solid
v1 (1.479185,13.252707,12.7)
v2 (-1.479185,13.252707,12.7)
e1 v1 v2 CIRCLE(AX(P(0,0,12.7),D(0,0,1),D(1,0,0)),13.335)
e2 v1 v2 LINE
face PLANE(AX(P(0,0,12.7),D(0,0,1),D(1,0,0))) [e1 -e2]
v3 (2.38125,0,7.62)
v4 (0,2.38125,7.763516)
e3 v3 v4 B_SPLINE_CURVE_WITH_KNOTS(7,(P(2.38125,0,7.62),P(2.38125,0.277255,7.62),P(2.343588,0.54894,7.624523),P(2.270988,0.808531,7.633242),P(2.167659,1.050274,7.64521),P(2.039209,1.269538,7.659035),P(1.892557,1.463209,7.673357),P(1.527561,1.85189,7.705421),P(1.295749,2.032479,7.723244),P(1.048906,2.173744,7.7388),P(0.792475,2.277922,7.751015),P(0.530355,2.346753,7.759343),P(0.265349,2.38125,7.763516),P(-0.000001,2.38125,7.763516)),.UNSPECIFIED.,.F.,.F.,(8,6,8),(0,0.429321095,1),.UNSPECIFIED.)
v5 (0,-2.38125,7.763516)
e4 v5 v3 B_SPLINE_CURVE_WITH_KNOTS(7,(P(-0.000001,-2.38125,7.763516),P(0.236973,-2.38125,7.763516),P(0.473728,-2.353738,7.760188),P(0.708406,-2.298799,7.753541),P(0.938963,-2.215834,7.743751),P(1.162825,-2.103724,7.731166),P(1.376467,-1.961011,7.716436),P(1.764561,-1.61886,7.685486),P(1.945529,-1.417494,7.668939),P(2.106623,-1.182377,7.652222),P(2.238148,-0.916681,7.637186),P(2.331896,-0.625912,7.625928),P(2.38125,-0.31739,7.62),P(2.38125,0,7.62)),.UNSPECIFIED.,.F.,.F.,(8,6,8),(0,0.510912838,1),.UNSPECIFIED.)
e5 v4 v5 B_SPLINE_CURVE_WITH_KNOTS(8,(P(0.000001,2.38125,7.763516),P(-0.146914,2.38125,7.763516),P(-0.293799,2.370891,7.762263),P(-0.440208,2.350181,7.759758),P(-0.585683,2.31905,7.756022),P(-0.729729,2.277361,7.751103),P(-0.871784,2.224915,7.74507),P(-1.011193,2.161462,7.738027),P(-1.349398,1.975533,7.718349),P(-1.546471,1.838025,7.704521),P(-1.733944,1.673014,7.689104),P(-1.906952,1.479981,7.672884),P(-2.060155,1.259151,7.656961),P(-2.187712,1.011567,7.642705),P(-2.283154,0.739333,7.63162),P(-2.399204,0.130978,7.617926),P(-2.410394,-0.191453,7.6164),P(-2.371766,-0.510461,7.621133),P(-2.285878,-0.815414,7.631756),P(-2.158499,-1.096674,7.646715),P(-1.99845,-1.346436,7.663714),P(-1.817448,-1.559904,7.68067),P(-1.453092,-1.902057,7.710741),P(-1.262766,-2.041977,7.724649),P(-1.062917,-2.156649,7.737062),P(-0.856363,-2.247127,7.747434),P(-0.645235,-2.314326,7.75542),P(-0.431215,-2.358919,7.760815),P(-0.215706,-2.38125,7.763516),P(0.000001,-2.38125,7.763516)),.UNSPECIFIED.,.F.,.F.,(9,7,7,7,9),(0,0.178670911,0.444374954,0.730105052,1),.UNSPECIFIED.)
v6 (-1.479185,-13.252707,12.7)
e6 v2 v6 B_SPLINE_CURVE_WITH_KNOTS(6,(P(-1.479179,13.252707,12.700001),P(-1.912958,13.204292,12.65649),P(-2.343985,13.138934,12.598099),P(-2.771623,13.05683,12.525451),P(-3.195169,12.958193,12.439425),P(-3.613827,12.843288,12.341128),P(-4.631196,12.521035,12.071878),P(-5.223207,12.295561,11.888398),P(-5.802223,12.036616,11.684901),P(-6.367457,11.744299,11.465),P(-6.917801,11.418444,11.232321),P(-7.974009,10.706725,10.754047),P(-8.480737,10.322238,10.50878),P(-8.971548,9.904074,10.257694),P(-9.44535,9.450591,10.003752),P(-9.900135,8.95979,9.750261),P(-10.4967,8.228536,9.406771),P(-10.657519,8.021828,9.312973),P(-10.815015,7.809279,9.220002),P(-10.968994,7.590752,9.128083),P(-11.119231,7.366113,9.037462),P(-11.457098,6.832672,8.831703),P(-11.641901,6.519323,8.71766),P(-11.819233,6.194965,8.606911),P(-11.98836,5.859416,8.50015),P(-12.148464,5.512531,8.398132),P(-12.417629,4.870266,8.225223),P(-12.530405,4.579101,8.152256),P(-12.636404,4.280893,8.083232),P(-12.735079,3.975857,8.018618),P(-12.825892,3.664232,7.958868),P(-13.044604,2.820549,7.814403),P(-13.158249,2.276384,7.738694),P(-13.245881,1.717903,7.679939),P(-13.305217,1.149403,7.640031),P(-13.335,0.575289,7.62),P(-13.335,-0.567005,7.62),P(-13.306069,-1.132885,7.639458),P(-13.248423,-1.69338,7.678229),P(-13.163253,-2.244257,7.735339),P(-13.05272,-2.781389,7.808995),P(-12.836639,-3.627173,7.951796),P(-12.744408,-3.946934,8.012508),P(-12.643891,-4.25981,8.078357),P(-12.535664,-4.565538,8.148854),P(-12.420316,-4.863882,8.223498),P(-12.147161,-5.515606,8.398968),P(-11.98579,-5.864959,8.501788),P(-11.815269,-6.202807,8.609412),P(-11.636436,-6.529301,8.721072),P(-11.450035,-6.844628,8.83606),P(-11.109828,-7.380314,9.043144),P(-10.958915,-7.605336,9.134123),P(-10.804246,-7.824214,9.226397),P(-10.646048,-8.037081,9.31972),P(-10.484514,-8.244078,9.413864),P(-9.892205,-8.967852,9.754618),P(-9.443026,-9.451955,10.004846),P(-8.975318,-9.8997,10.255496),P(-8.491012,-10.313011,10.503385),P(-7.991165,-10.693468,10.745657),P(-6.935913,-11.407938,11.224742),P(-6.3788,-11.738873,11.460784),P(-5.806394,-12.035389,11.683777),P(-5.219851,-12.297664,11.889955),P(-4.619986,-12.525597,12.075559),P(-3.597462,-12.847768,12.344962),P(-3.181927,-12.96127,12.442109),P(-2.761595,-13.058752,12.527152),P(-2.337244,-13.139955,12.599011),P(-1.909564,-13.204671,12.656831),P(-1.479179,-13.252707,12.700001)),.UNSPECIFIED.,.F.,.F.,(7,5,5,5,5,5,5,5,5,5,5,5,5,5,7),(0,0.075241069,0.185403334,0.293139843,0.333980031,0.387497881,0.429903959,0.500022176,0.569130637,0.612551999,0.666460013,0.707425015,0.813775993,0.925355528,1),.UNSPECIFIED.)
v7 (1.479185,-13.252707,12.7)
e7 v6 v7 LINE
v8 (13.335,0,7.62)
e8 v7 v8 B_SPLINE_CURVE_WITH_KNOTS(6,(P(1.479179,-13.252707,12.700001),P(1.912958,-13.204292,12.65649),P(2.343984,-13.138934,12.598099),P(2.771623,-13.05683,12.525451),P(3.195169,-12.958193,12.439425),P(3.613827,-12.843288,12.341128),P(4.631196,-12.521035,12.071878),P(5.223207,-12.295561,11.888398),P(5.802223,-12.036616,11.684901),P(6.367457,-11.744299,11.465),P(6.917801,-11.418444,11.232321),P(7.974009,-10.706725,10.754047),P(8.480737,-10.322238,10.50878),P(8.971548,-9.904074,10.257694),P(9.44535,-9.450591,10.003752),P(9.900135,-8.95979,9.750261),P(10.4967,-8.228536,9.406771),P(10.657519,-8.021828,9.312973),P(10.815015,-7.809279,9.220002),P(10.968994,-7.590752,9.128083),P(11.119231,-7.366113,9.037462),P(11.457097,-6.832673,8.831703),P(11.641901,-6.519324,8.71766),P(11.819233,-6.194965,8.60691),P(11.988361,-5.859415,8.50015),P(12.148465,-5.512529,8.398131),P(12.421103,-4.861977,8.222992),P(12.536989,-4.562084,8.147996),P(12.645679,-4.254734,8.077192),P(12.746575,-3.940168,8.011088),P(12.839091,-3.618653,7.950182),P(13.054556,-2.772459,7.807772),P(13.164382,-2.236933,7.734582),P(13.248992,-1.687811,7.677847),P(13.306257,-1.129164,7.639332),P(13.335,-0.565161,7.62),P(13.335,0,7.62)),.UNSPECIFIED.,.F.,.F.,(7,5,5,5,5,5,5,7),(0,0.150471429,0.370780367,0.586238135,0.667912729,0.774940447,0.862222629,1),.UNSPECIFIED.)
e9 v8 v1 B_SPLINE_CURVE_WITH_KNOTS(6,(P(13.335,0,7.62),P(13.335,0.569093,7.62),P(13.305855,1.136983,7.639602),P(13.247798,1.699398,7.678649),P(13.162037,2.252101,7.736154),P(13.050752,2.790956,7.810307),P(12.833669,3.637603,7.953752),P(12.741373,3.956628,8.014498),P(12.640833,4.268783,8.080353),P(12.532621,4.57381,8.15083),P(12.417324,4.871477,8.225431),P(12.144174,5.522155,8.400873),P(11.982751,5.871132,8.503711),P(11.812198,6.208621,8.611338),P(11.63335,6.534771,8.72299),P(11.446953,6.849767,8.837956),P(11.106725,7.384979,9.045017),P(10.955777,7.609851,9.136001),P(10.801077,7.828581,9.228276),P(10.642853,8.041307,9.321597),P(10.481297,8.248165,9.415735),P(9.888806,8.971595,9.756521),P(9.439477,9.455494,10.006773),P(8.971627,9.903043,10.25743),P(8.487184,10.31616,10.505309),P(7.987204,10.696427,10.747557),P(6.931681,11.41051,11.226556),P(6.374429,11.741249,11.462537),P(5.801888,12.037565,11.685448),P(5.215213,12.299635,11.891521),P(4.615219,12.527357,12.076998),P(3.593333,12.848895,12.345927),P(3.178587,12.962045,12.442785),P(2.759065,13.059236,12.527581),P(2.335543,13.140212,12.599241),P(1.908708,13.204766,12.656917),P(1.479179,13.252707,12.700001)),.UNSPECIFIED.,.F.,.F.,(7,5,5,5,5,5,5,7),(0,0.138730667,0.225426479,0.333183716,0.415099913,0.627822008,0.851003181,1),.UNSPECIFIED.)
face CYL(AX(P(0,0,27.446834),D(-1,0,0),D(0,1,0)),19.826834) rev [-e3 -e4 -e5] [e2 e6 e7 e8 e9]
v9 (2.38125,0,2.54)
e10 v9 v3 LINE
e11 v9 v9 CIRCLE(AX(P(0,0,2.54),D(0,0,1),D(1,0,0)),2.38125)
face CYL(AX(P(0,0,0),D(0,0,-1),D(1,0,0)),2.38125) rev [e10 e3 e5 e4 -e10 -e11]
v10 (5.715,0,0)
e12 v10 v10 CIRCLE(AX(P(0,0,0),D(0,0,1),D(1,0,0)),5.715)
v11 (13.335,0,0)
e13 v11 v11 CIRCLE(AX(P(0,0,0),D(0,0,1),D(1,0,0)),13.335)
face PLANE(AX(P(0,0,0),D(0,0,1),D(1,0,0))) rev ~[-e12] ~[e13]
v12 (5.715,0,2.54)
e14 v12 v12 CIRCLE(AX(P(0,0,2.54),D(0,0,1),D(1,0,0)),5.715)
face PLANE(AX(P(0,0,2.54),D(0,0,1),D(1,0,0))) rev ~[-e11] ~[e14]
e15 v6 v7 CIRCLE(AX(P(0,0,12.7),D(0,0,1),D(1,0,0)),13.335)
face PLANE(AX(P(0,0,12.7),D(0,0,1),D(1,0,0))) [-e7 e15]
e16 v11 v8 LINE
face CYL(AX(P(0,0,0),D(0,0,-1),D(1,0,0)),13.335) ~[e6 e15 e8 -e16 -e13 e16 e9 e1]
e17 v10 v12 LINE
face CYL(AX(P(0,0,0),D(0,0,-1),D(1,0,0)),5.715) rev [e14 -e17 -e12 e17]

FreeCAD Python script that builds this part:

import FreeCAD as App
import Part
import Sketcher

V = App.Vector
Q = App.Units.Quantity

doc = App.newDocument("Part")
body = doc.addObject("PartDesign::Body", "Body")

# Sketch on XY plane
sketch1 = body.newObject("Sketcher::SketchObject", "Sketch")
sketch1.AttachmentSupport = (doc.getObject("XY_Plane"), [""])
sketch1.MapMode = "FlatFace"
sketch1.addGeometry([
    Part.Circle(V(0, 0, 0), V(0, 0, 1), 13.3),
    Part.Circle(V(0, 0, 0), V(0, 0, 1), 2.4),
], False)
sketch1.addConstraint([
    Sketcher.Constraint("Coincident", 0, 3, -1, 1),
    Sketcher.Constraint("Coincident", 1, 3, -1, 1),
    Sketcher.Constraint("Diameter", 0, Q("1.05 in")),
    Sketcher.Constraint("Diameter", 1, Q("0.1875 in")),
])
pad1 = body.newObject("PartDesign::Pad", "Pad")
pad1.Profile = sketch1
pad1.Length = Q("0.5 in")

# Sketch on XY plane
sketch2 = body.newObject("Sketcher::SketchObject", "Sketch001")
sketch2.AttachmentSupport = (doc.getObject("XY_Plane"), [""])
sketch2.MapMode = "FlatFace"
sketch2.addGeometry([
    Part.Circle(V(0, 0, 0), V(0, 0, 1), 5.7),
    Part.Circle(V(0, 0, 0), V(0, 0, 1), 2.4),
], False)
sketch2.addConstraint([
    Sketcher.Constraint("Coincident", 0, 3, -1, 1),
    Sketcher.Constraint("Coincident", 1, 3, -1, 1),
    Sketcher.Constraint("Diameter", 0, Q("0.45 in")),
    Sketcher.Constraint("Diameter", 1, Q("0.1875 in")),
])
pocket1 = body.newObject("PartDesign::Pocket", "Pocket")
pocket1.Profile = sketch2
pocket1.Length = Q("0.1 in")
pocket1.Reversed = True

# Sketch on YZ plane
sketch3 = body.newObject("Sketcher::SketchObject", "Sketch002")
sketch3.AttachmentSupport = (doc.getObject("YZ_Plane"), [""])
sketch3.MapMode = "FlatFace"
sketch3.addGeometry(Part.Circle(V(0, 27, 0), V(0, 0, 1), 20), False)
sketch3.addConstraint([
    Sketcher.Constraint("PointOnObject", 0, 3, -2),
    Sketcher.Constraint("Diameter", 0, Q("39.653669 mm")),
    Sketcher.Constraint("DistanceY", -1, 1, 0, 3, Q("27.446834 mm")),
])
pocket2 = body.newObject("PartDesign::Pocket", "Pocket001")
pocket2.Profile = sketch3
pocket2.Type = "ThroughAll"
pocket2.Midplane = True

doc.recompute()
